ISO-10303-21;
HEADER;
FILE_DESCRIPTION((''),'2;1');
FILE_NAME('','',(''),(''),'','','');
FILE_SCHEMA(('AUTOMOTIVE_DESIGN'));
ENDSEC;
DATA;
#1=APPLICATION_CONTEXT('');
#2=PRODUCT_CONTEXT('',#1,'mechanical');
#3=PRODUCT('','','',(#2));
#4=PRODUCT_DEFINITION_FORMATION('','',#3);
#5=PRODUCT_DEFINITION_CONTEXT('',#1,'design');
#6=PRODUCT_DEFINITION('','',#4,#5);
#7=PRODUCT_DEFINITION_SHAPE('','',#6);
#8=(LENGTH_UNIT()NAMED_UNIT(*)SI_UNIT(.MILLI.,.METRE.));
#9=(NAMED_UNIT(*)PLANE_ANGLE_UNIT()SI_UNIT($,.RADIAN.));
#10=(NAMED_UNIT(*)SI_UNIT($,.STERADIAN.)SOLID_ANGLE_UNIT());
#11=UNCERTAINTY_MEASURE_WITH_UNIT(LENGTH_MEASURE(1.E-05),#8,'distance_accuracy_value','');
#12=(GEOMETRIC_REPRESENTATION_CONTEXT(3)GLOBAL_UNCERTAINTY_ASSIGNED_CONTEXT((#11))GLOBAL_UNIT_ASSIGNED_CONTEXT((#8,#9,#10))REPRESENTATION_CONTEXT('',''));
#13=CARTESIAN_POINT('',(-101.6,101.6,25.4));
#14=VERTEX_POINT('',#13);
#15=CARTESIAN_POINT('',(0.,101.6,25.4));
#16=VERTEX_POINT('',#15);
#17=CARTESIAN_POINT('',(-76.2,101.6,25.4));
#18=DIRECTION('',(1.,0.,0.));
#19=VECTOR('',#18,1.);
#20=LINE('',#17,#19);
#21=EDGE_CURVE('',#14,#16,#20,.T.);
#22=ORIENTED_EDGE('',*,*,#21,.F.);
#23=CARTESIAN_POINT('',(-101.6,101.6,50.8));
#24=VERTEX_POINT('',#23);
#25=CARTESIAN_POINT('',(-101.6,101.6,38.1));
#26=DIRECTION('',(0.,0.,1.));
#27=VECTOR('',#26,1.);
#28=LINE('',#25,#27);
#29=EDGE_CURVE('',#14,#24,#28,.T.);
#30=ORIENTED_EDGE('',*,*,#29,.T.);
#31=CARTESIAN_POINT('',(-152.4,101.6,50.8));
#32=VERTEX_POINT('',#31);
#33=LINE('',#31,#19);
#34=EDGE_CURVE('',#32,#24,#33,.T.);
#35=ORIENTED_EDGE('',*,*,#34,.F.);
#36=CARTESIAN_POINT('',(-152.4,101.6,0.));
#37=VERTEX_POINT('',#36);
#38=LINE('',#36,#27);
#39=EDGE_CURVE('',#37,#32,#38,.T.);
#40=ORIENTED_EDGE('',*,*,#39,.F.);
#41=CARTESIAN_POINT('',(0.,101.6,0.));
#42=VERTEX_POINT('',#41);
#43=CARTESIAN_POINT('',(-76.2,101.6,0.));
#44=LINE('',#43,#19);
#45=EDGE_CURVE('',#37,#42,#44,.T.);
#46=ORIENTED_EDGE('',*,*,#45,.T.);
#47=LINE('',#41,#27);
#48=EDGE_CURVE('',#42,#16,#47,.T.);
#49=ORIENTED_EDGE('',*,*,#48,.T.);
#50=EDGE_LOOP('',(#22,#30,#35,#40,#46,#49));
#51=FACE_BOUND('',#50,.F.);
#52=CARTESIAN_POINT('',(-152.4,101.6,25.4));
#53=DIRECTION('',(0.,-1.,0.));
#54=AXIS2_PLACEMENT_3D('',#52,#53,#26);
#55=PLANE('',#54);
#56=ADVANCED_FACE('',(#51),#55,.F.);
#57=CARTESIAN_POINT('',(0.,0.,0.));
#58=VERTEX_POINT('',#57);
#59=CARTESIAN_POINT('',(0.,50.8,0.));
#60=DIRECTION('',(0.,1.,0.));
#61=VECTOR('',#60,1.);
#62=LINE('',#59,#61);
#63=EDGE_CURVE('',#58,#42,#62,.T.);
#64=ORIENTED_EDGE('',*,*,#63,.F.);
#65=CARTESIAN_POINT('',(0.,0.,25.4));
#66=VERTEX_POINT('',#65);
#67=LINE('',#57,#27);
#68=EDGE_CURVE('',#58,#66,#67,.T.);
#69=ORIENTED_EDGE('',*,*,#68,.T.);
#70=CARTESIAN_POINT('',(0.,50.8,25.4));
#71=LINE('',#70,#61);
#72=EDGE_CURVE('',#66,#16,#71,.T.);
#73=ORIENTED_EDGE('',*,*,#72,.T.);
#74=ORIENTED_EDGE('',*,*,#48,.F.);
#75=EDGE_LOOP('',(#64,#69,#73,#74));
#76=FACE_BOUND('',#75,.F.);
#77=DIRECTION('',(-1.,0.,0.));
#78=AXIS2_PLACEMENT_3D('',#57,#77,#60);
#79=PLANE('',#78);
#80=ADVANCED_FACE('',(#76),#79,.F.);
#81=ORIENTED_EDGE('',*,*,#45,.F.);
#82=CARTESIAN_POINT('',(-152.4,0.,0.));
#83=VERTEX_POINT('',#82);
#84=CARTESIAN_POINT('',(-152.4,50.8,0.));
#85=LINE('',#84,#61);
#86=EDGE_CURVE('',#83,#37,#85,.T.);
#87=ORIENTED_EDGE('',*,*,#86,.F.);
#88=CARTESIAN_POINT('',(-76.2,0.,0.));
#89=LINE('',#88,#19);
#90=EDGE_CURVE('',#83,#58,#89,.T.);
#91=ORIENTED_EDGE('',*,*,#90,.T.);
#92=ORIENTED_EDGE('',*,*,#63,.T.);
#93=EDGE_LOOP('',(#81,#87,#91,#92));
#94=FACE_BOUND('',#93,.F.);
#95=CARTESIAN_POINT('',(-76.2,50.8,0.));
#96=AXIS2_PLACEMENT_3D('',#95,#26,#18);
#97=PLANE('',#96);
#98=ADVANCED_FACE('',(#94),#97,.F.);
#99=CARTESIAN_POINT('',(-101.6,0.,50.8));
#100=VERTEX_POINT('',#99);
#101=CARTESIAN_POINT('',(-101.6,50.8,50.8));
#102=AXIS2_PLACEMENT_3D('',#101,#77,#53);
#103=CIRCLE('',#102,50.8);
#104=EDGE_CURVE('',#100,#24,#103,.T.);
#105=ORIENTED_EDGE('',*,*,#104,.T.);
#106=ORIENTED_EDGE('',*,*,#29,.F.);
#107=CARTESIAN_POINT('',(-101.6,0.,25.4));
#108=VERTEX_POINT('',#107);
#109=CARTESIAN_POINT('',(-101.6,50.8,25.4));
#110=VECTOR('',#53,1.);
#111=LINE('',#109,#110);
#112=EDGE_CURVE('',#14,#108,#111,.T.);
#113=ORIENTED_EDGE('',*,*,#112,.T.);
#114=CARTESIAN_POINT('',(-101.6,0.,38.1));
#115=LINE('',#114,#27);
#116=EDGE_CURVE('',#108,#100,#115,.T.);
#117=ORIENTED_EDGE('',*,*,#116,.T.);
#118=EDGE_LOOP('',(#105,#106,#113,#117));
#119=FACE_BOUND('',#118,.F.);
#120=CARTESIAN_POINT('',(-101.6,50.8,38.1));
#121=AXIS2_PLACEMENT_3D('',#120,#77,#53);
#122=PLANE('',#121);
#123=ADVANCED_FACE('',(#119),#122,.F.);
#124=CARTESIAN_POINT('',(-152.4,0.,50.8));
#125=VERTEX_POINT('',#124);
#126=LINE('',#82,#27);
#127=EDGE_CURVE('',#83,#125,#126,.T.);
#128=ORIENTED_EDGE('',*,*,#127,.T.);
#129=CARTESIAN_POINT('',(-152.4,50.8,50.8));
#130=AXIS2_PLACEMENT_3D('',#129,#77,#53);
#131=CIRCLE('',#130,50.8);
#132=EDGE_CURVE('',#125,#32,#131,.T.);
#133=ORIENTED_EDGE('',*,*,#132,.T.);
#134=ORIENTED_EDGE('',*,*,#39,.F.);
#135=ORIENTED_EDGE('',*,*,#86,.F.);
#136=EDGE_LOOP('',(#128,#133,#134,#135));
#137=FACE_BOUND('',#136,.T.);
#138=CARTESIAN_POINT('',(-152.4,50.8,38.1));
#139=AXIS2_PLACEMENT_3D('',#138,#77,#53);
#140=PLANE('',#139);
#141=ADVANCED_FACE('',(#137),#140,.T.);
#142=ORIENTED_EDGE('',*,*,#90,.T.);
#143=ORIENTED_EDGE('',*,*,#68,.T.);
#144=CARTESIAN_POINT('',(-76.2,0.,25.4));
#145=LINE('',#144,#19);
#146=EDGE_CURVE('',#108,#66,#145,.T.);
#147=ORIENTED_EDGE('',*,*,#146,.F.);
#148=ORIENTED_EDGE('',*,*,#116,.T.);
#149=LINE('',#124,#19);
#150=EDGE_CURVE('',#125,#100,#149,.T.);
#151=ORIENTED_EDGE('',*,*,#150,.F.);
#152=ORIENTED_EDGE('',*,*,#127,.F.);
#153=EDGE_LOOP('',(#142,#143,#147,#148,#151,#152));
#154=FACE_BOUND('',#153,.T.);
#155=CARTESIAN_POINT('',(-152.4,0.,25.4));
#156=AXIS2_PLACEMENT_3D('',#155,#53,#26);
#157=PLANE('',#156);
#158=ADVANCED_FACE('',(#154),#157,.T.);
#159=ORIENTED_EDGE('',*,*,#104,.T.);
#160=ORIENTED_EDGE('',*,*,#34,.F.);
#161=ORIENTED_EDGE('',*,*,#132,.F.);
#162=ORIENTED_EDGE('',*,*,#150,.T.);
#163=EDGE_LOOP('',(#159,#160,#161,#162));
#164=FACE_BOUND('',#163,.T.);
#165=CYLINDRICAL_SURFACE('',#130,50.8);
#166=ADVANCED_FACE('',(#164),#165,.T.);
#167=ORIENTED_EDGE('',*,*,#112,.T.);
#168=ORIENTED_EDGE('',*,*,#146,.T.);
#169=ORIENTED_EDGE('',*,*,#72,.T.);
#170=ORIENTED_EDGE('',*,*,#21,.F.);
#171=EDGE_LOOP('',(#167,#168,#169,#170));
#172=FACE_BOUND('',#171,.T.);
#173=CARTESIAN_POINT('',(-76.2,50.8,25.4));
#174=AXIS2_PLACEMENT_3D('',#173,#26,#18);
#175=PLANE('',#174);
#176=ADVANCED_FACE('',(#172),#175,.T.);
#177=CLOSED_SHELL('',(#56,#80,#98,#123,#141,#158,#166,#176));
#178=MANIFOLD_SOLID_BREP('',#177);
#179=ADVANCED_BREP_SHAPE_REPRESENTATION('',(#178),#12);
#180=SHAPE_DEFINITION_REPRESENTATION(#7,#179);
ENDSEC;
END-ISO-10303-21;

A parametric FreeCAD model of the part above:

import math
import FreeCAD as App
import Part
import Sketcher

V = App.Vector
Q = App.Units.Quantity


def add_polygon(sketch, points):
    """Adds a closed chain of lines whose ends are joined by coincident constraints."""
    first, n = sketch.GeometryCount, len(points)
    for a, b in zip(points, points[1:] + points[:1]):
        sketch.addGeometry(Part.LineSegment(App.Vector(*a, 0), App.Vector(*b, 0)), False)
    for i in range(n):
        sketch.addConstraint(Sketcher.Constraint("Coincident", first + i, 2, first + (i + 1) % n, 1))

doc = App.newDocument("Part")
body = doc.addObject("PartDesign::Body", "Body")

# Sketch on XY plane
sketch1 = doc.addObject("Sketcher::SketchObject", "Sketch")
body.addObject(sketch1)
sketch1.AttachmentSupport = (doc.XY_Plane, [""])
sketch1.MapMode = "FlatFace"
add_polygon(sketch1, [(-152, 102), (-152, 0), (0, 0), (0, 102)])  # lines 0-3
sketch1.addConstraint(Sketcher.Constraint("Vertical", 0))
sketch1.addConstraint(Sketcher.Constraint("Horizontal", 1))
sketch1.addConstraint(Sketcher.Constraint("Vertical", 2))
sketch1.addConstraint(Sketcher.Constraint("Horizontal", 3))
sketch1.addConstraint(Sketcher.Constraint("Coincident", 1, 2, -1, 1))
sketch1.addConstraint(Sketcher.Constraint("DistanceX", 1, 1, 1, 2, Q("6 in")))
sketch1.addConstraint(Sketcher.Constraint("DistanceY", 0, 2, 0, 1, Q("4 in")))
pad1 = doc.addObject("PartDesign::Pad", "Pad")
body.addObject(pad1)
pad1.Profile = sketch1
pad1.Length = Q("1 in")

# Sketch on YZ plane
sketch2 = doc.addObject("Sketcher::SketchObject", "Sketch001")
body.addObject(sketch2)
sketch2.AttachmentSupport = (doc.YZ_Plane, [""])
sketch2.MapMode = "FlatFace"
sketch2.AttachmentOffset = App.Placement(V(0, 0, -6 * 25.4), App.Rotation())
sketch2.addGeometry(Part.LineSegment(V(102, 51, 0), V(102, 25, 0)), False)
sketch2.addGeometry(Part.LineSegment(V(102, 25, 0), V(0, 25, 0)), False)
sketch2.addGeometry(Part.LineSegment(V(0, 25, 0), V(0, 51, 0)), False)
sketch2.addGeometry(Part.ArcOfCircle(Part.Circle(V(51, 51, 0), V(0, 0, 1), 51), math.radians(0), math.radians(180)), False)
sketch2.addConstraint(Sketcher.Constraint("Coincident", 0, 2, 1, 1))
sketch2.addConstraint(Sketcher.Constraint("Coincident", 1, 2, 2, 1))
sketch2.addConstraint(Sketcher.Constraint("Tangent", 2, 2, 3, 2))
sketch2.addConstraint(Sketcher.Constraint("Tangent", 3, 1, 0, 1))
sketch2.addConstraint(Sketcher.Constraint("Vertical", 0))
sketch2.addConstraint(Sketcher.Constraint("Horizontal", 1))
sketch2.addConstraint(Sketcher.Constraint("Vertical", 2))
sketch2.addConstraint(Sketcher.Constraint("PointOnObject", 1, 2, -2))
sketch2.addConstraint(Sketcher.Constraint("Radius", 3, Q("2 in")))
sketch2.addConstraint(Sketcher.Constraint("DistanceY", 0, 2, 0, 1, Q("1 in")))
sketch2.addConstraint(Sketcher.Constraint("DistanceY", -1, 1, 3, 3, Q("2 in")))
pad2 = doc.addObject("PartDesign::Pad", "Pad001")
body.addObject(pad2)
pad2.Profile = sketch2
pad2.Length = Q("2 in")

doc.recompute()
